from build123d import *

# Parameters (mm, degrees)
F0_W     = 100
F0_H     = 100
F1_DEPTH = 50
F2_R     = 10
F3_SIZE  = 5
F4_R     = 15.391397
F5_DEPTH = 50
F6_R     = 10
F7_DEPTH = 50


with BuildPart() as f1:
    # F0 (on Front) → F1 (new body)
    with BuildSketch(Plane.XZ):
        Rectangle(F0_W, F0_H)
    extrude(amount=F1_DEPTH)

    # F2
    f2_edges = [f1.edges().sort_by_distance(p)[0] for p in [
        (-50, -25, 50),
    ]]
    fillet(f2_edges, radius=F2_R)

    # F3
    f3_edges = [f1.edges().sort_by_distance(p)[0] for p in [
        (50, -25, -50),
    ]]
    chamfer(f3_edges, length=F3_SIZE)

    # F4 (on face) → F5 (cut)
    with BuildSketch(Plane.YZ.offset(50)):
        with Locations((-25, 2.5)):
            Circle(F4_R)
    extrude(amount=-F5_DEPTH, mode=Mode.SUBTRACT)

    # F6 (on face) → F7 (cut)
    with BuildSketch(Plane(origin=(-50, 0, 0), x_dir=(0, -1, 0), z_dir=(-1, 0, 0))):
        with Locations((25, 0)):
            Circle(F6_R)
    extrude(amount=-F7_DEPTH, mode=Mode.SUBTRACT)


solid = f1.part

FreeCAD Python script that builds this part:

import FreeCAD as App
import Part
import Sketcher

V = App.Vector
Q = App.Units.Quantity


def edges_at(feature, points):
    """Names of the edges that pass closest to the given points."""
    edges = feature.Shape.Edges
    near = lambda p: min(range(len(edges)), key=lambda i: edges[i].distToShape(Part.Vertex(*p))[0])
    return sorted({f"Edge{near(p) + 1}" for p in points})


def add_polygon(sketch, points):
    """Adds a closed chain of lines whose ends are joined by coincident constraints."""
    first, n = sketch.GeometryCount, len(points)
    for a, b in zip(points, points[1:] + points[:1]):
        sketch.addGeometry(Part.LineSegment(App.Vector(*a, 0), App.Vector(*b, 0)), False)
    for i in range(n):
        sketch.addConstraint(Sketcher.Constraint("Coincident", first + i, 2, first + (i + 1) % n, 1))

doc = App.newDocument("Part")
body = doc.addObject("PartDesign::Body", "Body")

# Sketch on XZ plane
sketch1 = body.newObject("Sketcher::SketchObject", "Sketch")
sketch1.AttachmentSupport = (doc.getObject("XZ_Plane"), [""])
sketch1.MapMode = "FlatFace"
add_polygon(sketch1, [(-50, 50), (-50, -50), (50, -50), (50, 50)])  # lines 0-3
sketch1.addConstraint([
    Sketcher.Constraint("Vertical", 0),
    Sketcher.Constraint("Horizontal", 1),
    Sketcher.Constraint("Vertical", 2),
    Sketcher.Constraint("Horizontal", 3),
    Sketcher.Constraint("Symmetric", 0, 2, 2, 2, -1, 1),
    Sketcher.Constraint("Equal", 3, 0),
    Sketcher.Constraint("DistanceX", 1, 1, 1, 2, Q("100 mm")),
])
pad1 = body.newObject("PartDesign::Pad", "Pad")
pad1.Profile = sketch1
pad1.Length = 50
doc.recompute()

fillet = body.newObject("PartDesign::Fillet", "Fillet")
fillet.Base = (pad1, edges_at(pad1, [(-50, -25, 50)]))
fillet.Radius = 10
doc.recompute()

chamfer = body.newObject("PartDesign::Chamfer", "Chamfer")
chamfer.Base = (fillet, edges_at(fillet, [(50, -25, -50)]))
chamfer.Size = 5

# Sketch on YZ plane
sketch2 = body.newObject("Sketcher::SketchObject", "Sketch001")
sketch2.AttachmentSupport = (doc.getObject("YZ_Plane"), [""])
sketch2.MapMode = "FlatFace"
sketch2.AttachmentOffset = App.Placement(V(0, 0, 50), App.Rotation())
sketch2.addGeometry(Part.Circle(V(-25, 2, 0), V(0, 0, 1), 15), False)
sketch2.addConstraint([
    Sketcher.Constraint("DistanceX", 0, 3, -1, 1, Q("25 mm")),
    Sketcher.Constraint("DistanceY", -1, 1, 0, 3, Q("2.5 mm")),
    Sketcher.Constraint("Diameter", 0, Q("30.782794 mm")),
])
pocket1 = body.newObject("PartDesign::Pocket", "Pocket")
pocket1.Profile = sketch2
pocket1.Length = 50

# Sketch on YZ plane
sketch3 = body.newObject("Sketcher::SketchObject", "Sketch002")
sketch3.AttachmentSupport = (doc.getObject("YZ_Plane"), [""])
sketch3.MapMode = "FlatFace"
sketch3.AttachmentOffset = App.Placement(V(0, 0, -50), App.Rotation())
sketch3.addGeometry(Part.Circle(V(-25, 0, 0), V(0, 0, 1), 10), False)
sketch3.addConstraint([
    Sketcher.Constraint("PointOnObject", 0, 3, -1),
    Sketcher.Constraint("Diameter", 0, Q("20 mm")),
    Sketcher.Constraint("DistanceX", 0, 3, -1, 1, Q("25 mm")),
])
pocket2 = body.newObject("PartDesign::Pocket", "Pocket001")
pocket2.Profile = sketch3
pocket2.Length = 50
pocket2.Reversed = True

doc.recompute()
